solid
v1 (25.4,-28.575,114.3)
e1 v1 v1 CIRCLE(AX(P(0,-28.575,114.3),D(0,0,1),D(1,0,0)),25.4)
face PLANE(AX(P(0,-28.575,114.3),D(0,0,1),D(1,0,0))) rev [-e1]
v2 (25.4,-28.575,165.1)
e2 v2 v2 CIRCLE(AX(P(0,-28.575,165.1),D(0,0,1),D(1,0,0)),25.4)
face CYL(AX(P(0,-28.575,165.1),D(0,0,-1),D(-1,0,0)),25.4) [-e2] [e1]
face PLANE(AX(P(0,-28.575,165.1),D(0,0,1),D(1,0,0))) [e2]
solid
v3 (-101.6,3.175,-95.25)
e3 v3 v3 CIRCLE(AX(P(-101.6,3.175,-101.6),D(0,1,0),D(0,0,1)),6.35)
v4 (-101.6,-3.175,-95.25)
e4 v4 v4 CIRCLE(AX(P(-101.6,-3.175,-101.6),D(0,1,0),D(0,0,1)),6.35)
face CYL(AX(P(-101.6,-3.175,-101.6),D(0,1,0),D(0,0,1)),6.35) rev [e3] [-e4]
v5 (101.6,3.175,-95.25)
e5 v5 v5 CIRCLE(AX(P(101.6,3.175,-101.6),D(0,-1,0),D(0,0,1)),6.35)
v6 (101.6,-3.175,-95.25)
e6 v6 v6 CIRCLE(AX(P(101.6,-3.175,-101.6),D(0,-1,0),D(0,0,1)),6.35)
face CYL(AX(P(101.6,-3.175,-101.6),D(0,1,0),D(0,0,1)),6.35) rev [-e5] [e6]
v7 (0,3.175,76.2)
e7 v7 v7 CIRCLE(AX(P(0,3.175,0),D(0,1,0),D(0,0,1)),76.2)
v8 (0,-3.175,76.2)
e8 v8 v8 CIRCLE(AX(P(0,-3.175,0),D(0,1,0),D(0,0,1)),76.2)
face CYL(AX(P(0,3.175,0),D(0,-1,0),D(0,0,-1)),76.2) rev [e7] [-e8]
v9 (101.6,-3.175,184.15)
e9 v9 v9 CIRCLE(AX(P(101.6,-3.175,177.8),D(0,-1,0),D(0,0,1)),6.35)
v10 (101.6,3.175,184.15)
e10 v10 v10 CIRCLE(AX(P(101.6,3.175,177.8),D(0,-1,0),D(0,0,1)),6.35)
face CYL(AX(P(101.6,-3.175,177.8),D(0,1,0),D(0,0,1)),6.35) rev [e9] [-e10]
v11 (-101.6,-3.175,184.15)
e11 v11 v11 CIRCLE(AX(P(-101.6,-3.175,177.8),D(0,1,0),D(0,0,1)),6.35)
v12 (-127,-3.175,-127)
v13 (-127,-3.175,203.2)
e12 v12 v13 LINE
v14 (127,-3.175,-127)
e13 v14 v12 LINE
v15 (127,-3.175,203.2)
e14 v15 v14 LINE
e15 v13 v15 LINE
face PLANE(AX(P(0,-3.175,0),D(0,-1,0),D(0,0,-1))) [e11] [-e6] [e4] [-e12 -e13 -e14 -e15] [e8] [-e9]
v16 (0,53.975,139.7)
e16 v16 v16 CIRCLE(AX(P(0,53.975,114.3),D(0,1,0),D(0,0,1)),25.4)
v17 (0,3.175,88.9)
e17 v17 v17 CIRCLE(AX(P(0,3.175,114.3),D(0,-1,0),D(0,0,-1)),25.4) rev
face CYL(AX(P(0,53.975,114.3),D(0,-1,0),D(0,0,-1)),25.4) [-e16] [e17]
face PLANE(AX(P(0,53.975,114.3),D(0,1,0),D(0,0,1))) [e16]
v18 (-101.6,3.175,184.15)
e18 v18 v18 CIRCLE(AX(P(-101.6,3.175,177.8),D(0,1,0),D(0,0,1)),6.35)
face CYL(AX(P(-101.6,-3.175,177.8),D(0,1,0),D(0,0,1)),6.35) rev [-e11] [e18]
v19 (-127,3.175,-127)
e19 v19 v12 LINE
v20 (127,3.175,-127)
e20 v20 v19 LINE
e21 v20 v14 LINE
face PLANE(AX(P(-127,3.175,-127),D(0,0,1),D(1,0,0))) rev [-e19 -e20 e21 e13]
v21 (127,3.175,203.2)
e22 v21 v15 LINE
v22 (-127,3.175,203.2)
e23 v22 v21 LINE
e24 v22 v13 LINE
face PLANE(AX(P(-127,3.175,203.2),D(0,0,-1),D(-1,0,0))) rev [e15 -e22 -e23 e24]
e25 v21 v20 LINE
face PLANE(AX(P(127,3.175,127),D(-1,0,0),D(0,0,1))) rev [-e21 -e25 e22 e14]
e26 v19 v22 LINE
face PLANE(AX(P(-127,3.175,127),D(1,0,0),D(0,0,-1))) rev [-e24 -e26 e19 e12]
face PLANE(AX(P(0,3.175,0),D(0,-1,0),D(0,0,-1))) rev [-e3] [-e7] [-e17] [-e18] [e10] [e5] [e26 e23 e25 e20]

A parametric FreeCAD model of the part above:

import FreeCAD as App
import Part
import Sketcher
from FreeCAD import Vector
Q = App.Units.Quantity


def add_polygon(sketch, points):
    """Adds a closed chain of lines whose ends are joined by coincident constraints."""
    first, n = sketch.GeometryCount, len(points)
    for a, b in zip(points, points[1:] + points[:1]):
        sketch.addGeometry(Part.LineSegment(App.Vector(*a, 0), App.Vector(*b, 0)), False)
    for i in range(n):
        sketch.addConstraint(Sketcher.Constraint("Coincident", first + i, 2, first + (i + 1) % n, 1))

doc = App.newDocument("Part")
body = doc.addObject("PartDesign::Body", "Body")

sketch1 = doc.addObject("Sketcher::SketchObject", "Sketch")
body.addObject(sketch1)
sketch1.AttachmentSupport = (doc.XZ_Plane, [""])
sketch1.MapMode = "FlatFace"
add_polygon(sketch1, [(-127, -127), (-127, 203), (127, 203), (127, -127)])
sketch1.addGeometry(Part.Circle(Vector(0, 0, 0), Vector(0, 0, 1), 76), False)
sketch1.addConstraint(Sketcher.Constraint("Vertical", 0))
sketch1.addConstraint(Sketcher.Constraint("Horizontal", 1))
sketch1.addConstraint(Sketcher.Constraint("Vertical", 2))
sketch1.addConstraint(Sketcher.Constraint("Horizontal", 3))
sketch1.addConstraint(Sketcher.Constraint("Coincident", 4, 3, -1, 1))
sketch1.addConstraint(Sketcher.Constraint("Diameter", 4, Q("6 in")))
sketch1.addConstraint(Sketcher.Constraint("DistanceX", 1, 1, 1, 2, Q("10 in")))
sketch1.addConstraint(Sketcher.Constraint("DistanceY", 0, 1, 0, 2, Q("13 in")))
sketch1.addConstraint(Sketcher.Constraint("DistanceX", 0, 2, -1, 1, Q("5 in")))
sketch1.addConstraint(Sketcher.Constraint("DistanceY", -1, 1, 0, 2, Q("8 in")))
pad1 = doc.addObject("PartDesign::Pad", "Pad")
body.addObject(pad1)
pad1.Profile = sketch1
pad1.Length = Q("0.25 in")
pad1.Midplane = True

sketch2 = doc.addObject("Sketcher::SketchObject", "Sketch001")
body.addObject(sketch2)
sketch2.AttachmentSupport = (doc.XZ_Plane, [""])
sketch2.MapMode = "FlatFace"
sketch2.AttachmentOffset = App.Placement(Vector(0, 0, -0.125 * 25.4), App.Rotation())
sketch2.addGeometry(Part.Circle(Vector(0, 114, 0), Vector(0, 0, 1), 25), False)
sketch2.addConstraint(Sketcher.Constraint("PointOnObject", 0, 3, -2))
sketch2.addConstraint(Sketcher.Constraint("Diameter", 0, Q("2 in")))
sketch2.addConstraint(Sketcher.Constraint("DistanceY", -1, 1, 0, 3, Q("4.5 in")))
pad2 = doc.addObject("PartDesign::Pad", "Pad001")
body.addObject(pad2)
pad2.Profile = sketch2
pad2.Length = Q("2 in")
pad2.Reversed = True

sketch3 = doc.addObject("Sketcher::SketchObject", "Sketch002")
body.addObject(sketch3)
sketch3.AttachmentSupport = (doc.XZ_Plane, [""])
sketch3.MapMode = "FlatFace"
sketch3.AttachmentOffset = App.Placement(Vector(0, 0, -0.125 * 25.4), App.Rotation())
sketch3.addGeometry(Part.Circle(Vector(-102, -102, 0), Vector(0, 0, 1), 6), False)
sketch3.addGeometry(Part.Circle(Vector(-102, 178, 0), Vector(0, 0, 1), 6), False)
sketch3.addConstraint(Sketcher.Constraint("Equal", 0, 1))
sketch3.addConstraint(Sketcher.Constraint("Vertical", 0, 3, 1, 3))
sketch3.addConstraint(Sketcher.Constraint("Diameter", 0, Q("0.5 in")))
sketch3.addConstraint(Sketcher.Constraint("DistanceX", 0, 3, -1, 1, Q("4 in")))
sketch3.addConstraint(Sketcher.Constraint("DistanceY", 0, 3, -1, 1, Q("4 in")))
sketch3.addConstraint(Sketcher.Constraint("DistanceY", -1, 1, 1, 3, Q("7 in")))
pocket1 = doc.addObject("PartDesign::Pocket", "Pocket")
body.addObject(pocket1)
pocket1.Profile = sketch3
pocket1.Type = "ThroughAll"
pocket1.Reversed = True
doc.recompute()

mirrored = doc.addObject("PartDesign::Mirrored", "Mirrored")
body.addObject(mirrored)
mirrored.Originals = [pocket1]
mirrored.MirrorPlane = (doc.YZ_Plane, [""])
body.Tip = mirrored
body2 = doc.addObject("PartDesign::Body", "Body001")

sketch4 = doc.addObject("Sketcher::SketchObject", "Sketch003")
body2.addObject(sketch4)
sketch4.AttachmentSupport = (doc.getObject("XY_Plane001"), [""])
sketch4.MapMode = "FlatFace"
sketch4.AttachmentOffset = App.Placement(Vector(0, 0, 4.5 * 25.4), App.Rotation())
sketch4.addGeometry(Part.Circle(Vector(0, -29, 0), Vector(0, 0, 1), 25), False)
sketch4.addConstraint(Sketcher.Constraint("PointOnObject", 0, 3, -2))
sketch4.addConstraint(Sketcher.Constraint("Diameter", 0, Q("2 in")))
sketch4.addConstraint(Sketcher.Constraint("DistanceY", 0, 3, -1, 1, Q("1.125 in")))
pad3 = doc.addObject("PartDesign::Pad", "Pad002")
body2.addObject(pad3)
pad3.Profile = sketch4
pad3.Length = Q("2 in")

doc.recompute()
